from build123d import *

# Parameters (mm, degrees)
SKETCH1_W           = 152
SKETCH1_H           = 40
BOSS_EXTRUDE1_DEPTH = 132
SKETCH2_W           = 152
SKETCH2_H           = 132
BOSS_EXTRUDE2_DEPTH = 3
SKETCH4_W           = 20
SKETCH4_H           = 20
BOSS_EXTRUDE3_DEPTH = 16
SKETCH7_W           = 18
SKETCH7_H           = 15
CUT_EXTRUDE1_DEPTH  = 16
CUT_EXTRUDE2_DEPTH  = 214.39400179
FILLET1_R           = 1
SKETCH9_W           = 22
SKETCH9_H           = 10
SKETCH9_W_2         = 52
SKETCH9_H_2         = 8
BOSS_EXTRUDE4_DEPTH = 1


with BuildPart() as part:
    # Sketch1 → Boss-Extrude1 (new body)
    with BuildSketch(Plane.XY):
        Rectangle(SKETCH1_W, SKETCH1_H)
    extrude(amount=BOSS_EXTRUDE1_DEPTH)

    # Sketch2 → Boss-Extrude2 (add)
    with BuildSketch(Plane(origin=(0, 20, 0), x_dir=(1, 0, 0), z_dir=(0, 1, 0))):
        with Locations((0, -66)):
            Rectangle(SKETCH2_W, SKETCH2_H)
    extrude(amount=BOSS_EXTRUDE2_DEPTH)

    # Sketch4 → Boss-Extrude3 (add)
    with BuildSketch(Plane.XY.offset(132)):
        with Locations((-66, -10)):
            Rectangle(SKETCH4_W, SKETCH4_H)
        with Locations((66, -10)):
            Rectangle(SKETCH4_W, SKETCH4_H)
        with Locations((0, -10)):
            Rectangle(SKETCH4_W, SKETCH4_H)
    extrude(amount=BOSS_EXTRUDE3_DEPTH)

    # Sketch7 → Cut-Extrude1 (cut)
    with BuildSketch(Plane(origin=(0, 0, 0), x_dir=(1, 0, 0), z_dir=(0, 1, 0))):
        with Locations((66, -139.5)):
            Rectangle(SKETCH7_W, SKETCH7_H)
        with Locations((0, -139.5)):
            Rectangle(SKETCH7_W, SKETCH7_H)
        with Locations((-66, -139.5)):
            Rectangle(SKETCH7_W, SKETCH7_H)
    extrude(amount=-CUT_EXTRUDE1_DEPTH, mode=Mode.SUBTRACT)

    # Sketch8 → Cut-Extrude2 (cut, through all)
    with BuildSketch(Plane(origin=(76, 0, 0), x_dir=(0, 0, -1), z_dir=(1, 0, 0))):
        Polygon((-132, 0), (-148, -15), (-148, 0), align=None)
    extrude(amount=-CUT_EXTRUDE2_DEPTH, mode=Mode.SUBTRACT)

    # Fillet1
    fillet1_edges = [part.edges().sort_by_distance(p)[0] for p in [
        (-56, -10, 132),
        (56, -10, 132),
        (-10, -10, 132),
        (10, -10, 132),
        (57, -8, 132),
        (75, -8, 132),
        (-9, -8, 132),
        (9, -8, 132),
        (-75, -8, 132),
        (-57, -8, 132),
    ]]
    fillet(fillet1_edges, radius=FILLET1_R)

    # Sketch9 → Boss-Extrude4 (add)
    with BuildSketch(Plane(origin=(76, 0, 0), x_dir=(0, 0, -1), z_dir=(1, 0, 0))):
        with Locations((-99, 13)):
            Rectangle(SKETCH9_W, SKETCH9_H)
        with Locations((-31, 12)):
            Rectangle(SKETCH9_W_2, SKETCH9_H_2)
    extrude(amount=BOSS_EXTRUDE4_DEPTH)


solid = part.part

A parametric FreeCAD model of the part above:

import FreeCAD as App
import Part
import Sketcher
Q = App.Units.Quantity


def edges_at(feature, points):
    """Names of the edges that pass closest to the given points."""
    edges = feature.Shape.Edges
    near = lambda p: min(range(len(edges)), key=lambda i: edges[i].distToShape(Part.Vertex(*p))[0])
    return sorted({f"Edge{near(p) + 1}" for p in points})

doc = App.newDocument("Part")
body = doc.addObject("PartDesign::Body", "Body")

sketch1 = body.newObject("Sketcher::SketchObject", "Sketch")
sketch1.AttachmentSupport = (doc.getObject("XY_Plane"), [""])
sketch1.MapMode = "FlatFace"
sketch1.addGeometry([
    Part.LineSegment(App.Vector(-76, 20, 0), App.Vector(-76, -20, 0)),
    Part.LineSegment(App.Vector(-76, -20, 0), App.Vector(76, -20, 0)),
    Part.LineSegment(App.Vector(76, -20, 0), App.Vector(76, 20, 0)),
    Part.LineSegment(App.Vector(76, 20, 0), App.Vector(-76, 20, 0)),
], False)
sketch1.addConstraint([
    Sketcher.Constraint("Coincident", 0, 2, 1, 1),
    Sketcher.Constraint("Coincident", 1, 2, 2, 1),
    Sketcher.Constraint("Coincident", 2, 2, 3, 1),
    Sketcher.Constraint("Coincident", 3, 2, 0, 1),
    Sketcher.Constraint("Vertical", 0),
    Sketcher.Constraint("Horizontal", 1),
    Sketcher.Constraint("Vertical", 2),
    Sketcher.Constraint("Horizontal", 3),
    Sketcher.Constraint("Symmetric", 0, 2, 2, 2, -1, 1),
    Sketcher.Constraint("DistanceX", 1, 1, 1, 2, Q("152 mm")),
    Sketcher.Constraint("DistanceY", 0, 2, 0, 1, Q("40 mm")),
])
pad1 = body.newObject("PartDesign::Pad", "Pad")
pad1.Profile = sketch1
pad1.Length = 132

sketch2 = body.newObject("Sketcher::SketchObject", "Sketch001")
sketch2.AttachmentSupport = (doc.getObject("XZ_Plane"), [""])
sketch2.MapMode = "FlatFace"
sketch2.AttachmentOffset = App.Placement(App.Vector(0, 0, -20), App.Rotation())
sketch2.addGeometry([
    Part.LineSegment(App.Vector(-76, 0, 0), App.Vector(-76, 132, 0)),
    Part.LineSegment(App.Vector(-76, 132, 0), App.Vector(76, 132, 0)),
    Part.LineSegment(App.Vector(76, 132, 0), App.Vector(76, 0, 0)),
    Part.LineSegment(App.Vector(76, 0, 0), App.Vector(-76, 0, 0)),
], False)
sketch2.addConstraint([
    Sketcher.Constraint("Coincident", 0, 2, 1, 1),
    Sketcher.Constraint("Coincident", 1, 2, 2, 1),
    Sketcher.Constraint("Coincident", 2, 2, 3, 1),
    Sketcher.Constraint("Coincident", 3, 2, 0, 1),
    Sketcher.Constraint("Vertical", 0),
    Sketcher.Constraint("Horizontal", 1),
    Sketcher.Constraint("Vertical", 2),
    Sketcher.Constraint("Horizontal", 3),
    Sketcher.Constraint("Symmetric", 2, 2, 3, 2, -1, 1),
    Sketcher.Constraint("DistanceX", 1, 1, 1, 2, Q("152 mm")),
    Sketcher.Constraint("DistanceY", 0, 1, 0, 2, Q("132 mm")),
])
pad2 = body.newObject("PartDesign::Pad", "Pad001")
pad2.Profile = sketch2
pad2.Length = 3
pad2.Reversed = True

sketch3 = body.newObject("Sketcher::SketchObject", "Sketch002")
sketch3.AttachmentSupport = (doc.getObject("XY_Plane"), [""])
sketch3.MapMode = "FlatFace"
sketch3.AttachmentOffset = App.Placement(App.Vector(0, 0, 132), App.Rotation())
sketch3.addGeometry([
    Part.LineSegment(App.Vector(-76, 0, 0), App.Vector(-76, -20, 0)),
    Part.LineSegment(App.Vector(-76, -20, 0), App.Vector(-56, -20, 0)),
    Part.LineSegment(App.Vector(-56, -20, 0), App.Vector(-56, 0, 0)),
    Part.LineSegment(App.Vector(-56, 0, 0), App.Vector(-76, 0, 0)),
    Part.LineSegment(App.Vector(56, 0, 0), App.Vector(56, -20, 0)),
    Part.LineSegment(App.Vector(56, -20, 0), App.Vector(76, -20, 0)),
    Part.LineSegment(App.Vector(76, -20, 0), App.Vector(76, 0, 0)),
    Part.LineSegment(App.Vector(76, 0, 0), App.Vector(56, 0, 0)),
    Part.LineSegment(App.Vector(-10, 0, 0), App.Vector(-10, -20, 0)),
    Part.LineSegment(App.Vector(-10, -20, 0), App.Vector(10, -20, 0)),
    Part.LineSegment(App.Vector(10, -20, 0), App.Vector(10, 0, 0)),
    Part.LineSegment(App.Vector(10, 0, 0), App.Vector(-10, 0, 0)),
], False)
sketch3.addConstraint([
    Sketcher.Constraint("Coincident", 0, 2, 1, 1),
    Sketcher.Constraint("Coincident", 1, 2, 2, 1),
    Sketcher.Constraint("Coincident", 2, 2, 3, 1),
    Sketcher.Constraint("Coincident", 3, 2, 0, 1),
    Sketcher.Constraint("Coincident", 4, 2, 5, 1),
    Sketcher.Constraint("Coincident", 5, 2, 6, 1),
    Sketcher.Constraint("Coincident", 6, 2, 7, 1),
    Sketcher.Constraint("Coincident", 7, 2, 4, 1),
    Sketcher.Constraint("Coincident", 8, 2, 9, 1),
    Sketcher.Constraint("Coincident", 9, 2, 10, 1),
    Sketcher.Constraint("Coincident", 10, 2, 11, 1),
    Sketcher.Constraint("Coincident", 11, 2, 8, 1),
    Sketcher.Constraint("Vertical", 0),
    Sketcher.Constraint("Horizontal", 1),
    Sketcher.Constraint("Vertical", 2),
    Sketcher.Constraint("Horizontal", 3),
    Sketcher.Constraint("Vertical", 4),
    Sketcher.Constraint("Horizontal", 5),
    Sketcher.Constraint("Vertical", 6),
    Sketcher.Constraint("Horizontal", 7),
    Sketcher.Constraint("Vertical", 8),
    Sketcher.Constraint("Horizontal", 9),
    Sketcher.Constraint("Vertical", 10),
    Sketcher.Constraint("Horizontal", 11),
    Sketcher.Constraint("Symmetric", 3, 2, 6, 2, -1, 1),
    Sketcher.Constraint("Symmetric", 10, 2, 11, 2, -1, 1),
    Sketcher.Constraint("Symmetric", 1, 2, 4, 2, -2),
    Sketcher.Constraint("PointOnObject", 2, 2, -1),
    Sketcher.Constraint("Horizontal", 5, 2, 8, 2),
    Sketcher.Constraint("Equal", 7, 9),
    Sketcher.Constraint("Equal", 11, 0),
    Sketcher.Constraint("DistanceX", 1, 1, 1, 2, Q("20 mm")),
    Sketcher.Constraint("DistanceX", 0, 2, -1, 1, Q("76 mm")),
])
pad3 = body.newObject("PartDesign::Pad", "Pad002")
pad3.Profile = sketch3
pad3.Length = 16

sketch4 = body.newObject("Sketcher::SketchObject", "Sketch003")
sketch4.AttachmentSupport = (doc.getObject("XZ_Plane"), [""])
sketch4.MapMode = "FlatFace"
sketch4.addGeometry([
    Part.LineSegment(App.Vector(57, 132, 0), App.Vector(57, 147, 0)),
    Part.LineSegment(App.Vector(57, 147, 0), App.Vector(75, 147, 0)),
    Part.LineSegment(App.Vector(75, 147, 0), App.Vector(75, 132, 0)),
    Part.LineSegment(App.Vector(75, 132, 0), App.Vector(57, 132, 0)),
    Part.LineSegment(App.Vector(-9, 132, 0), App.Vector(-9, 147, 0)),
    Part.LineSegment(App.Vector(-9, 147, 0), App.Vector(9, 147, 0)),
    Part.LineSegment(App.Vector(9, 147, 0), App.Vector(9, 132, 0)),
    Part.LineSegment(App.Vector(9, 132, 0), App.Vector(-9, 132, 0)),
    Part.LineSegment(App.Vector(-75, 132, 0), App.Vector(-75, 147, 0)),
    Part.LineSegment(App.Vector(-75, 147, 0), App.Vector(-57, 147, 0)),
    Part.LineSegment(App.Vector(-57, 147, 0), App.Vector(-57, 132, 0)),
    Part.LineSegment(App.Vector(-57, 132, 0), App.Vector(-75, 132, 0)),
], False)
sketch4.addConstraint([
    Sketcher.Constraint("Coincident", 0, 2, 1, 1),
    Sketcher.Constraint("Coincident", 1, 2, 2, 1),
    Sketcher.Constraint("Coincident", 2, 2, 3, 1),
    Sketcher.Constraint("Coincident", 3, 2, 0, 1),
    Sketcher.Constraint("Coincident", 4, 2, 5, 1),
    Sketcher.Constraint("Coincident", 5, 2, 6, 1),
    Sketcher.Constraint("Coincident", 6, 2, 7, 1),
    Sketcher.Constraint("Coincident", 7, 2, 4, 1),
    Sketcher.Constraint("Coincident", 8, 2, 9, 1),
    Sketcher.Constraint("Coincident", 9, 2, 10, 1),
    Sketcher.Constraint("Coincident", 10, 2, 11, 1),
    Sketcher.Constraint("Coincident", 11, 2, 8, 1),
    Sketcher.Constraint("Vertical", 0),
    Sketcher.Constraint("Horizontal", 1),
    Sketcher.Constraint("Vertical", 2),
    Sketcher.Constraint("Horizontal", 3),
    Sketcher.Constraint("Vertical", 4),
    Sketcher.Constraint("Horizontal", 5),
    Sketcher.Constraint("Vertical", 6),
    Sketcher.Constraint("Horizontal", 7),
    Sketcher.Constraint("Vertical", 8),
    Sketcher.Constraint("Horizontal", 9),
    Sketcher.Constraint("Vertical", 10),
    Sketcher.Constraint("Horizontal", 11),
    Sketcher.Constraint("Symmetric", 1, 2, 8, 2, -2),
    Sketcher.Constraint("Symmetric", 3, 2, 10, 2, -2),
    Sketcher.Constraint("Horizontal", 1, 2, 4, 2),
    Sketcher.Constraint("Horizontal", 3, 2, 6, 2),
    Sketcher.Constraint("Equal", 3, 5),
    Sketcher.Constraint("DistanceX", 1, 1, 1, 2, Q("18 mm")),
    Sketcher.Constraint("DistanceY", 0, 1, 0, 2, Q("15 mm")),
    Sketcher.Constraint("DistanceX", -1, 1, 0, 2, Q("57 mm")),
    Sketcher.Constraint("DistanceY", -1, 1, 0, 2, Q("147 mm")),
    Sketcher.Constraint("DistanceX", 4, 2, -1, 1, Q("9 mm")),
])
pocket1 = body.newObject("PartDesign::Pocket", "Pocket")
pocket1.Profile = sketch4
pocket1.Length = 16
pocket1.Reversed = True

sketch5 = body.newObject("Sketcher::SketchObject", "Sketch004")
sketch5.AttachmentSupport = (doc.getObject("YZ_Plane"), [""])
sketch5.MapMode = "FlatFace"
sketch5.AttachmentOffset = App.Placement(App.Vector(0, 0, 76), App.Rotation())
sketch5.addGeometry([
    Part.LineSegment(App.Vector(-15, 148, 0), App.Vector(0, 132, 0)),
    Part.LineSegment(App.Vector(0, 132, 0), App.Vector(0, 148, 0)),
    Part.LineSegment(App.Vector(0, 148, 0), App.Vector(-15, 148, 0)),
], False)
sketch5.addConstraint([
    Sketcher.Constraint("Coincident", 0, 2, 1, 1),
    Sketcher.Constraint("Coincident", 1, 2, 2, 1),
    Sketcher.Constraint("Coincident", 2, 2, 0, 1),
    Sketcher.Constraint("Vertical", 1),
    Sketcher.Constraint("Horizontal", 2),
    Sketcher.Constraint("PointOnObject", 0, 2, -2),
    Sketcher.Constraint("DistanceX", 2, 2, 2, 1, Q("15 mm")),
    Sketcher.Constraint("DistanceY", 1, 1, 1, 2, Q("16 mm")),
    Sketcher.Constraint("DistanceY", -1, 1, 0, 2, Q("132 mm")),
])
pocket2 = body.newObject("PartDesign::Pocket", "Pocket001")
pocket2.Profile = sketch5
pocket2.Type = "ThroughAll"
doc.recompute()

fillet = body.newObject("PartDesign::Fillet", "Fillet")
fillet.Base = (pocket2, edges_at(pocket2, [
    (-56, -10, 132),
    (56, -10, 132),
    (-10, -10, 132),
    (10, -10, 132),
    (57, -8, 132),
    (75, -8, 132),
    (-9, -8, 132),
    (9, -8, 132),
    (-75, -8, 132),
    (-57, -8, 132),
]))
fillet.Radius = 1

sketch6 = body.newObject("Sketcher::SketchObject", "Sketch005")
sketch6.AttachmentSupport = (doc.getObject("YZ_Plane"), [""])
sketch6.MapMode = "FlatFace"
sketch6.AttachmentOffset = App.Placement(App.Vector(0, 0, 76), App.Rotation())
sketch6.addGeometry([
    Part.LineSegment(App.Vector(18, 110, 0), App.Vector(8, 110, 0)),
    Part.LineSegment(App.Vector(8, 110, 0), App.Vector(8, 88, 0)),
    Part.LineSegment(App.Vector(8, 88, 0), App.Vector(18, 88, 0)),
    Part.LineSegment(App.Vector(18, 88, 0), App.Vector(18, 110, 0)),
    Part.LineSegment(App.Vector(16, 57, 0), App.Vector(8, 57, 0)),
    Part.LineSegment(App.Vector(8, 57, 0), App.Vector(8, 5, 0)),
    Part.LineSegment(App.Vector(8, 5, 0), App.Vector(16, 5, 0)),
    Part.LineSegment(App.Vector(16, 5, 0), App.Vector(16, 57, 0)),
], False)
sketch6.addConstraint([
    Sketcher.Constraint("Coincident", 0, 2, 1, 1),
    Sketcher.Constraint("Coincident", 1, 2, 2, 1),
    Sketcher.Constraint("Coincident", 2, 2, 3, 1),
    Sketcher.Constraint("Coincident", 3, 2, 0, 1),
    Sketcher.Constraint("Coincident", 4, 2, 5, 1),
    Sketcher.Constraint("Coincident", 5, 2, 6, 1),
    Sketcher.Constraint("Coincident", 6, 2, 7, 1),
    Sketcher.Constraint("Coincident", 7, 2, 4, 1),
    Sketcher.Constraint("Horizontal", 0),
    Sketcher.Constraint("Vertical", 1),
    Sketcher.Constraint("Horizontal", 2),
    Sketcher.Constraint("Vertical", 3),
    Sketcher.Constraint("Horizontal", 4),
    Sketcher.Constraint("Vertical", 5),
    Sketcher.Constraint("Horizontal", 6),
    Sketcher.Constraint("Vertical", 7),
    Sketcher.Constraint("Vertical", 1, 2, 4, 2),
    Sketcher.Constraint("DistanceX", 0, 2, 0, 1, Q("10 mm")),
    Sketcher.Constraint("DistanceX", 4, 2, 4, 1, Q("8 mm")),
    Sketcher.Constraint("DistanceY", 1, 2, 1, 1, Q("22 mm")),
    Sketcher.Constraint("DistanceY", 5, 2, 5, 1, Q("52 mm")),
    Sketcher.Constraint("DistanceX", -1, 1, 0, 2, Q("8 mm")),
    Sketcher.Constraint("DistanceY", -1, 1, 0, 2, Q("110 mm")),
    Sketcher.Constraint("DistanceY", -1, 1, 4, 2, Q("57 mm")),
])
pad4 = body.newObject("PartDesign::Pad", "Pad003")
pad4.Profile = sketch6
pad4.Length = 1

doc.recompute()
